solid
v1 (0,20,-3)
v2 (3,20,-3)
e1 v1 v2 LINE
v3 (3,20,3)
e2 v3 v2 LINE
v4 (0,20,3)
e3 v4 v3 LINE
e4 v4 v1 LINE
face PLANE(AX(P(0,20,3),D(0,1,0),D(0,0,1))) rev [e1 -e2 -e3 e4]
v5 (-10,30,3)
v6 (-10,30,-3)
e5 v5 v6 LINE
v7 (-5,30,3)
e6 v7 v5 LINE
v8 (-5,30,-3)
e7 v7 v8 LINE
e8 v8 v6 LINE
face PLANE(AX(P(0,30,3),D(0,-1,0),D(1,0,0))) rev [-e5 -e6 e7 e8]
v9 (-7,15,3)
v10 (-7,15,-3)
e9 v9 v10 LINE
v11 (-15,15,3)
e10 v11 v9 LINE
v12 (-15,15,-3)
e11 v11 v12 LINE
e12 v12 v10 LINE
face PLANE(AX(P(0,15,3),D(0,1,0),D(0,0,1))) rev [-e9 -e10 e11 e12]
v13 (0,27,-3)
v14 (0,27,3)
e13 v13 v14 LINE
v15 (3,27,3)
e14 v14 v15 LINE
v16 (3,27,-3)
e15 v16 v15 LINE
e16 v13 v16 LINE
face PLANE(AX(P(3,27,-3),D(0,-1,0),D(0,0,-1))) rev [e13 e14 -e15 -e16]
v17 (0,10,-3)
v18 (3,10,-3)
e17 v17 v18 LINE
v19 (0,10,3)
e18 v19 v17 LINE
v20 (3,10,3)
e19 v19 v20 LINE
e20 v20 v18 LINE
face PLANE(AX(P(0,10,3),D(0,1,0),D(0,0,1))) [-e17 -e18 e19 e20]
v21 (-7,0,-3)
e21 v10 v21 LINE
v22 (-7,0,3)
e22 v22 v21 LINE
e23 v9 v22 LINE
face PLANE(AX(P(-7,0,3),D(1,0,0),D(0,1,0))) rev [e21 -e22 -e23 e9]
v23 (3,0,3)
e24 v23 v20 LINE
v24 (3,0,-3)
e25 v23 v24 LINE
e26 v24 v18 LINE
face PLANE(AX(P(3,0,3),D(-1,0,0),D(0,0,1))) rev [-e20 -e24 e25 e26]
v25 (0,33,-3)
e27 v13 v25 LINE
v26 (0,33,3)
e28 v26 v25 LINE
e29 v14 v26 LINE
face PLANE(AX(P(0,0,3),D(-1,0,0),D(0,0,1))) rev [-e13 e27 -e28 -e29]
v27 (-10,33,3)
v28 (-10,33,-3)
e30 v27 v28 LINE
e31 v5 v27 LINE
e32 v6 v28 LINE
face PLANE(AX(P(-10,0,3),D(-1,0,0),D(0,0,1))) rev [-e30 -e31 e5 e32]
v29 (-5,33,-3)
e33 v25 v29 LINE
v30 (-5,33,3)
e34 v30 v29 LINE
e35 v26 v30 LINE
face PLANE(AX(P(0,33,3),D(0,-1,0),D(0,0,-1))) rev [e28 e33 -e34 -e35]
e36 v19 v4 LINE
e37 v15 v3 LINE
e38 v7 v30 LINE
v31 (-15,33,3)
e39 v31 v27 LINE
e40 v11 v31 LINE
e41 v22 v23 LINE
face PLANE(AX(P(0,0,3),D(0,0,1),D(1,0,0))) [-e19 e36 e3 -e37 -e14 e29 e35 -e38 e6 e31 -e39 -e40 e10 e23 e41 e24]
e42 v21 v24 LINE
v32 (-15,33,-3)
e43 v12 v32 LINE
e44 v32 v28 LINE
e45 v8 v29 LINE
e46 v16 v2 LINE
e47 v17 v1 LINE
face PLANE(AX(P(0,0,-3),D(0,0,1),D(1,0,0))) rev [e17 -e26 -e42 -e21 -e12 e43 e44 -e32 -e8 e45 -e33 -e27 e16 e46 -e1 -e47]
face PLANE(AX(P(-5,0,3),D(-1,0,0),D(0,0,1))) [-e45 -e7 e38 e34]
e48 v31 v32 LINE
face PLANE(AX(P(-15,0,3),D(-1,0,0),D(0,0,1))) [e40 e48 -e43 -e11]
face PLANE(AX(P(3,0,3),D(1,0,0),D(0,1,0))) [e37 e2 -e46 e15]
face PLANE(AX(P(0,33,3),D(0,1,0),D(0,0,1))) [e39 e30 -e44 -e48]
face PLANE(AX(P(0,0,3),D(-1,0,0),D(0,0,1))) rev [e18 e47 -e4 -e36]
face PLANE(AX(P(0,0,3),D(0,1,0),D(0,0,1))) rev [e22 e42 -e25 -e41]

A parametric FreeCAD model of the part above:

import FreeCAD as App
import Part
import Sketcher

V = App.Vector
Q = App.Units.Quantity


def add_polygon(sketch, points):
    """Adds a closed chain of lines whose ends are joined by coincident constraints."""
    first, n = sketch.GeometryCount, len(points)
    for a, b in zip(points, points[1:] + points[:1]):
        sketch.addGeometry(Part.LineSegment(App.Vector(*a, 0), App.Vector(*b, 0)), False)
    for i in range(n):
        sketch.addConstraint(Sketcher.Constraint("Coincident", first + i, 2, first + (i + 1) % n, 1))

doc = App.newDocument("Part")
params = doc.addObject("Spreadsheet::Sheet", "Params")
for row, (alias, value) in enumerate([
    ("sketch1_width", "8 mm"),
    ("sketch1_width2", "10 mm"),
    ("sketch1_width3", "3 mm"),
    ("sketch1_height", "18 mm"),
    ("pad1_length", "6 mm"),
    ("sketch2_width", "3 mm"),
    ("pocket1_length", "6 mm"),
], start=1):
    params.set(f"A{row}", alias)
    params.set(f"B{row}", "=" + value)
    params.setAlias(f"B{row}", alias)

body = doc.addObject("PartDesign::Body", "Body")

sketch1 = doc.addObject("Sketcher::SketchObject", "Sketch")
body.addObject(sketch1)
sketch1.AttachmentSupport = (doc.XY_Plane, [""])
sketch1.MapMode = "FlatFace"
add_polygon(sketch1, [(-15, 33), (-15, 15), (-7, 15), (-7, 0), (3, 0), (3, 10), (0, 10), (0, 20), (3, 20), (3, 30), (0, 30), (0, 33), (-5, 33), (-5, 30), (-10, 30), (-10, 33)])
sketch1.addConstraint([
    Sketcher.Constraint("Vertical", 0),
    Sketcher.Constraint("Horizontal", 1),
    Sketcher.Constraint("Vertical", 2),
    Sketcher.Constraint("Horizontal", 3),
    Sketcher.Constraint("Vertical", 4),
    Sketcher.Constraint("Horizontal", 5),
    Sketcher.Constraint("Vertical", 6),
    Sketcher.Constraint("Horizontal", 7),
    Sketcher.Constraint("Vertical", 8),
    Sketcher.Constraint("Horizontal", 9),
    Sketcher.Constraint("Vertical", 10),
    Sketcher.Constraint("Horizontal", 11),
    Sketcher.Constraint("Vertical", 12),
    Sketcher.Constraint("Horizontal", 13),
    Sketcher.Constraint("Vertical", 14),
    Sketcher.Constraint("Horizontal", 15),
    Sketcher.Constraint("PointOnObject", 2, 2, -1),
    Sketcher.Constraint("PointOnObject", 5, 2, -2),
    Sketcher.Constraint("PointOnObject", 9, 2, -2),
    Sketcher.Constraint("Horizontal", 9, 2, 12, 2),
    Sketcher.Constraint("Horizontal", 11, 2, 14, 2),
    Sketcher.Constraint("Vertical", 4, 2, 7, 2),
    Sketcher.Constraint("Equal", 11, 13),
    Sketcher.Constraint("Equal", 13, 15),
    Sketcher.Constraint("Equal", 3, 4),
    Sketcher.Constraint("Equal", 4, 6),
    Sketcher.Constraint("Equal", 6, 8),
    Sketcher.Constraint("Equal", 9, 10),
    Sketcher.Constraint("DistanceX", 1, 1, 1, 2, Q("8 mm")),
    Sketcher.Constraint("DistanceX", 3, 1, 3, 2, Q("10 mm")),
    Sketcher.Constraint("DistanceX", 5, 2, 5, 1, Q("3 mm")),
    Sketcher.Constraint("DistanceY", 0, 2, 0, 1, Q("18 mm")),
])
sketch1.setExpression("Constraints[44]", "Params.sketch1_width")
sketch1.setExpression("Constraints[45]", "Params.sketch1_width2")
sketch1.setExpression("Constraints[46]", "Params.sketch1_width3")
sketch1.setExpression("Constraints[47]", "Params.sketch1_height")
pad1 = doc.addObject("PartDesign::Pad", "Pad")
body.addObject(pad1)
pad1.Profile = sketch1
pad1.setExpression("Length", "Params.pad1_length")
pad1.Midplane = True

sketch2 = doc.addObject("Sketcher::SketchObject", "Sketch001")
body.addObject(sketch2)
sketch2.AttachmentSupport = (doc.XY_Plane, [""])
sketch2.MapMode = "FlatFace"
sketch2.AttachmentOffset = App.Placement(V(0, 0, 3), App.Rotation())
add_polygon(sketch2, [(0, 30), (0, 27), (3, 27), (3, 30)])
sketch2.addConstraint([
    Sketcher.Constraint("Vertical", 0),
    Sketcher.Constraint("Horizontal", 1),
    Sketcher.Constraint("Vertical", 2),
    Sketcher.Constraint("Horizontal", 3),
    Sketcher.Constraint("PointOnObject", 0, 2, -2),
    Sketcher.Constraint("Equal", 3, 0),
    Sketcher.Constraint("DistanceX", 1, 1, 1, 2, Q("3 mm")),
    Sketcher.Constraint("DistanceY", -1, 1, 0, 2, Q("27 mm")),
])
sketch2.setExpression("Constraints[10]", "Params.sketch2_width")
pocket1 = doc.addObject("PartDesign::Pocket", "Pocket")
body.addObject(pocket1)
pocket1.Profile = sketch2
pocket1.setExpression("Length", "Params.pocket1_length")

doc.recompute()
